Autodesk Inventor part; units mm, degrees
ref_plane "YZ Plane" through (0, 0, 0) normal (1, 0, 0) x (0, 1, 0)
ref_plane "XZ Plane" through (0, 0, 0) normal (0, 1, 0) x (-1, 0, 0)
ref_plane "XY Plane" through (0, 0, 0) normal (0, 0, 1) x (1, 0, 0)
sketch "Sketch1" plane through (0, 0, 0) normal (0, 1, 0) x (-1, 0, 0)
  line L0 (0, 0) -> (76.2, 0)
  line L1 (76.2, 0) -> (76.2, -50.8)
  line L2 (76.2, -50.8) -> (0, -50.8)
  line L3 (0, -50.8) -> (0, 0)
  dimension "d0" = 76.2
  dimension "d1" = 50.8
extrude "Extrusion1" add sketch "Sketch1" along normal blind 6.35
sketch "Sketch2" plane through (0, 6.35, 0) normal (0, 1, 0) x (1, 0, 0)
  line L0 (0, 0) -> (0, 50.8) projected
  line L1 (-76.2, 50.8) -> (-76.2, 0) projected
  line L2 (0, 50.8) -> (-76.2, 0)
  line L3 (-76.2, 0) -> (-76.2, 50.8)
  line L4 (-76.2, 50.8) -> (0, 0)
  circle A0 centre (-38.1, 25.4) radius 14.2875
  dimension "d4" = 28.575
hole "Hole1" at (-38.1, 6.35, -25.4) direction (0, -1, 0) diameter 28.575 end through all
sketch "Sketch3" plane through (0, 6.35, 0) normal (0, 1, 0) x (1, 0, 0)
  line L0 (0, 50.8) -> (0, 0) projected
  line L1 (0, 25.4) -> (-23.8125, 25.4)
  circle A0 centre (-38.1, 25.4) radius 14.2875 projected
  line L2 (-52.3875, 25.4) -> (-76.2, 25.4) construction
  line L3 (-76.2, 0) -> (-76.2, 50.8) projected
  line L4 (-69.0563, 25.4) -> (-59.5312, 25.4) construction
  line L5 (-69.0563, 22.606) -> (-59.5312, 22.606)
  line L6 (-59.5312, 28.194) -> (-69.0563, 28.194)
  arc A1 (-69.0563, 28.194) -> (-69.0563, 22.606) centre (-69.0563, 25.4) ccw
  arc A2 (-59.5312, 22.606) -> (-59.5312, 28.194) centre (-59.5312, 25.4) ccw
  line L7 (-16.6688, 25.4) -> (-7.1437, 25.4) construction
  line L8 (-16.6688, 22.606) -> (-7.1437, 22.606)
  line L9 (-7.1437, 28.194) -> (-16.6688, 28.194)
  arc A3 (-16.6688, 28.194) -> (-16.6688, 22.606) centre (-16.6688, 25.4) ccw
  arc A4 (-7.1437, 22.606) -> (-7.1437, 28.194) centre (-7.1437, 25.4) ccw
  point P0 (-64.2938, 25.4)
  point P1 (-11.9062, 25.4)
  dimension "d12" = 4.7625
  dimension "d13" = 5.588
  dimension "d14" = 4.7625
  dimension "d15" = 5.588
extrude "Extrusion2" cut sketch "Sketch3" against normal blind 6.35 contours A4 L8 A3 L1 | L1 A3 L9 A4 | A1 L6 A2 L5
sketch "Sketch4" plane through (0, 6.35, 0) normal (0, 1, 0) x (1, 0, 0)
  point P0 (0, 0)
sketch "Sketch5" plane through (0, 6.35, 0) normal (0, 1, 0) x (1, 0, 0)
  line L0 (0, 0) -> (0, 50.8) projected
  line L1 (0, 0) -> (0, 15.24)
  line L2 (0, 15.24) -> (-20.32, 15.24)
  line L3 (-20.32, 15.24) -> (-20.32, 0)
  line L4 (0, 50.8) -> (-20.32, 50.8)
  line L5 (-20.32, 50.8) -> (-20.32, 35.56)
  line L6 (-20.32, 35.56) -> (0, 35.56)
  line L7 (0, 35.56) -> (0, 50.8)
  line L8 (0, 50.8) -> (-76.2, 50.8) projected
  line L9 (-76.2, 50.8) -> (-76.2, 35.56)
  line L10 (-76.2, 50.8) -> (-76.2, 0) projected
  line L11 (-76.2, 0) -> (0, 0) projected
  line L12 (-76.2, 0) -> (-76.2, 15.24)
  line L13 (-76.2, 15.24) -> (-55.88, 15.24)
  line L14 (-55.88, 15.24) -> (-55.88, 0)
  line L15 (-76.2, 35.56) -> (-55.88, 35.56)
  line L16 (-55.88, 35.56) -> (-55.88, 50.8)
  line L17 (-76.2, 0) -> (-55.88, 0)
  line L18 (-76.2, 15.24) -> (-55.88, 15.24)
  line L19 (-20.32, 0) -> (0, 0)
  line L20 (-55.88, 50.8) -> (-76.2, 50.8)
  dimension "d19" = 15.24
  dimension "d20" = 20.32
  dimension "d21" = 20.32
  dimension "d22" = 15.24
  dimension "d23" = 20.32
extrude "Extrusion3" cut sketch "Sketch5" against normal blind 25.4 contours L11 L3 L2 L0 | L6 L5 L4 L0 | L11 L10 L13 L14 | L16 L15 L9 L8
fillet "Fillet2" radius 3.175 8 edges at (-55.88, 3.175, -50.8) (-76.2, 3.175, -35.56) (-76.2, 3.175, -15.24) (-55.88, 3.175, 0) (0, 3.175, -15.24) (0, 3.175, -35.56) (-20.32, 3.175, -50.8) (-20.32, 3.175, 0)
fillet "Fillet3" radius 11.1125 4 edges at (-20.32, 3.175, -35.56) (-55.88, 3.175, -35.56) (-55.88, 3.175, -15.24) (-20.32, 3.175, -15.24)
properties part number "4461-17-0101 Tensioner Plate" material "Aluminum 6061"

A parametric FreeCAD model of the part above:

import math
import FreeCAD as App
import Part
import Sketcher
Q = App.Units.Quantity


def edges_at(feature, points):
    """Names of the edges that pass closest to the given points."""
    edges = feature.Shape.Edges
    near = lambda p: min(range(len(edges)), key=lambda i: edges[i].distToShape(Part.Vertex(*p))[0])
    return sorted({f"Edge{near(p) + 1}" for p in points})

doc = App.newDocument("Part")
body = doc.addObject("PartDesign::Body", "Body")

# Sketch on XZ plane
sketch1 = body.newObject("Sketcher::SketchObject", "Sketch")
sketch1.AttachmentSupport = (doc.getObject("XZ_Plane"), [""])
sketch1.MapMode = "FlatFace"
sketch1.addGeometry([
    Part.LineSegment(App.Vector(-76.2, 0, 0), App.Vector(0, 0, 0)),
    Part.LineSegment(App.Vector(0, 0, 0), App.Vector(0, -50.8, 0)),
    Part.LineSegment(App.Vector(0, -50.8, 0), App.Vector(-76.2, -50.8, 0)),
    Part.LineSegment(App.Vector(-76.2, -50.8, 0), App.Vector(-76.2, 0, 0)),
], False)
sketch1.addConstraint([
    Sketcher.Constraint("Coincident", 0, 2, 1, 1),
    Sketcher.Constraint("Coincident", 1, 2, 2, 1),
    Sketcher.Constraint("Coincident", 2, 2, 3, 1),
    Sketcher.Constraint("Coincident", 3, 2, 0, 1),
    Sketcher.Constraint("Horizontal", 0),
    Sketcher.Constraint("Vertical", 1),
    Sketcher.Constraint("Horizontal", 2),
    Sketcher.Constraint("Vertical", 3),
    Sketcher.Constraint("Coincident", 0, 2, -1, 1),
    Sketcher.Constraint("DistanceX", 0, 1, 0, 2, Q("3 in")),
    Sketcher.Constraint("DistanceY", 1, 2, 1, 1, Q("2 in")),
])
pad1 = body.newObject("PartDesign::Pad", "Pad")
pad1.Profile = sketch1
pad1.Length = Q("0.25 in")
pad1.Reversed = True

# Sketch on XZ plane
sketch2 = body.newObject("Sketcher::SketchObject", "Sketch001")
sketch2.AttachmentSupport = (doc.getObject("XZ_Plane"), [""])
sketch2.MapMode = "FlatFace"
sketch2.AttachmentOffset = App.Placement(App.Vector(0, 0, -0.25 * 25.4), App.Rotation())
sketch2.addGeometry(Part.Circle(App.Vector(-38.1, -25.4, 0), App.Vector(0, 0, 1), 14.2875), False)
sketch2.addConstraint([
    Sketcher.Constraint("Diameter", 0, Q("1.125 in")),
    Sketcher.Constraint("DistanceY", 0, 3, -1, 1, Q("1 in")),
    Sketcher.Constraint("DistanceX", 0, 3, -1, 1, Q("1.5 in")),
])
doc.recompute()
hole = body.newObject("PartDesign::Hole", "Hole")
hole.Profile = sketch2
hole.ThreadType = "None"
hole.Diameter = Q("1.125 in")
hole.DepthType = "ThroughAll"
hole.Reversed = True

# Sketch on XZ plane
sketch3 = body.newObject("Sketcher::SketchObject", "Sketch002")
sketch3.AttachmentSupport = (doc.getObject("XZ_Plane"), [""])
sketch3.MapMode = "FlatFace"
sketch3.AttachmentOffset = App.Placement(App.Vector(0, 0, -0.25 * 25.4), App.Rotation())
sketch3.addGeometry([
    Part.ArcOfCircle(Part.Circle(App.Vector(-7.1437, -25.4, 0), App.Vector(0, 0, 1), 2.794), math.radians(-90), math.radians(90)),  # 0
    Part.LineSegment(App.Vector(-7.1437, -28.194, 0), App.Vector(-16.6688, -28.194, 0)),  # 1
    Part.ArcOfCircle(Part.Circle(App.Vector(-16.6688, -25.4, 0), App.Vector(0, 0, 1), 2.794), math.radians(90), math.radians(270)),  # 2
    Part.LineSegment(App.Vector(-16.6688, -22.606, 0), App.Vector(-7.1437, -22.606, 0)),  # 3
    Part.ArcOfCircle(Part.Circle(App.Vector(-69.0563, -25.4, 0), App.Vector(0, 0, 1), 2.794), math.radians(90), math.radians(270)),  # 4
    Part.LineSegment(App.Vector(-69.0563, -22.606, 0), App.Vector(-59.5312, -22.606, 0)),  # 5
    Part.ArcOfCircle(Part.Circle(App.Vector(-59.5312, -25.4, 0), App.Vector(0, 0, 1), 2.794), math.radians(-90), math.radians(90)),  # 6
    Part.LineSegment(App.Vector(-59.5312, -28.194, 0), App.Vector(-69.0563, -28.194, 0)),  # 7
], False)
sketch3.addConstraint([
    Sketcher.Constraint("Tangent", 0, 1, 1, 1),
    Sketcher.Constraint("Tangent", 1, 2, 2, 2),
    Sketcher.Constraint("Tangent", 2, 1, 3, 1),
    Sketcher.Constraint("Tangent", 3, 2, 0, 2),
    Sketcher.Constraint("Tangent", 4, 1, 5, 1),
    Sketcher.Constraint("Tangent", 5, 2, 6, 2),
    Sketcher.Constraint("Tangent", 6, 1, 7, 1),
    Sketcher.Constraint("Tangent", 7, 2, 4, 2),
    Sketcher.Constraint("Horizontal", 1),
    Sketcher.Constraint("Horizontal", 3),
    Sketcher.Constraint("Horizontal", 5),
    Sketcher.Constraint("Horizontal", 7),
    Sketcher.Constraint("Equal", 2, 4),
    Sketcher.Constraint("Horizontal", 2, 3, 4, 3),
    Sketcher.Constraint("Equal", 3, 5),
    Sketcher.Constraint("Radius", 0, Q("0.11 in")),
    Sketcher.Constraint("DistanceY", 0, 3, -1, 1, Q("1 in")),
    Sketcher.Constraint("DistanceX", 1, 2, 1, 1, Q("0.375 in")),
    Sketcher.Constraint("DistanceX", 0, 3, -1, 1, Q("0.281248 in")),
    Sketcher.Constraint("DistanceX", 4, 3, -1, 1, Q("2.718752 in")),
])
pocket1 = body.newObject("PartDesign::Pocket", "Pocket")
pocket1.Profile = sketch3
pocket1.Length = Q("0.25 in")
pocket1.Reversed = True

# Sketch on XZ plane
sketch4 = body.newObject("Sketcher::SketchObject", "Sketch003")
sketch4.AttachmentSupport = (doc.getObject("XZ_Plane"), [""])
sketch4.MapMode = "FlatFace"
sketch4.AttachmentOffset = App.Placement(App.Vector(0, 0, -0.25 * 25.4), App.Rotation())
sketch4.addGeometry([
    Part.LineSegment(App.Vector(-20.32, 0, 0), App.Vector(0, 0, 0)),  # 0
    Part.LineSegment(App.Vector(0, 0, 0), App.Vector(0, -15.24, 0)),  # 1
    Part.LineSegment(App.Vector(0, -15.24, 0), App.Vector(-20.32, -15.24, 0)),  # 2
    Part.LineSegment(App.Vector(-20.32, -15.24, 0), App.Vector(-20.32, 0, 0)),  # 3
    Part.LineSegment(App.Vector(-20.32, -35.56, 0), App.Vector(0, -35.56, 0)),  # 4
    Part.LineSegment(App.Vector(0, -35.56, 0), App.Vector(0, -50.8, 0)),  # 5
    Part.LineSegment(App.Vector(0, -50.8, 0), App.Vector(-20.32, -50.8, 0)),  # 6
    Part.LineSegment(App.Vector(-20.32, -50.8, 0), App.Vector(-20.32, -35.56, 0)),  # 7
    Part.LineSegment(App.Vector(-76.2, 0, 0), App.Vector(-55.88, 0, 0)),  # 8
    Part.LineSegment(App.Vector(-55.88, 0, 0), App.Vector(-55.88, -15.24, 0)),  # 9
    Part.LineSegment(App.Vector(-55.88, -15.24, 0), App.Vector(-76.2, -15.24, 0)),  # 10
    Part.LineSegment(App.Vector(-76.2, -15.24, 0), App.Vector(-76.2, 0, 0)),  # 11
    Part.LineSegment(App.Vector(-55.88, -35.56, 0), App.Vector(-55.88, -50.8, 0)),  # 12
    Part.LineSegment(App.Vector(-55.88, -50.8, 0), App.Vector(-76.2, -50.8, 0)),  # 13
    Part.LineSegment(App.Vector(-76.2, -50.8, 0), App.Vector(-76.2, -35.56, 0)),  # 14
    Part.LineSegment(App.Vector(-76.2, -35.56, 0), App.Vector(-55.88, -35.56, 0)),  # 15
], False)
sketch4.addConstraint([
    Sketcher.Constraint("Coincident", 0, 2, 1, 1),
    Sketcher.Constraint("Coincident", 1, 2, 2, 1),
    Sketcher.Constraint("Coincident", 2, 2, 3, 1),
    Sketcher.Constraint("Coincident", 3, 2, 0, 1),
    Sketcher.Constraint("Coincident", 4, 2, 5, 1),
    Sketcher.Constraint("Coincident", 5, 2, 6, 1),
    Sketcher.Constraint("Coincident", 6, 2, 7, 1),
    Sketcher.Constraint("Coincident", 7, 2, 4, 1),
    Sketcher.Constraint("Coincident", 8, 2, 9, 1),
    Sketcher.Constraint("Coincident", 9, 2, 10, 1),
    Sketcher.Constraint("Coincident", 10, 2, 11, 1),
    Sketcher.Constraint("Coincident", 11, 2, 8, 1),
    Sketcher.Constraint("Coincident", 12, 2, 13, 1),
    Sketcher.Constraint("Coincident", 13, 2, 14, 1),
    Sketcher.Constraint("Coincident", 14, 2, 15, 1),
    Sketcher.Constraint("Coincident", 15, 2, 12, 1),
    Sketcher.Constraint("Horizontal", 0),
    Sketcher.Constraint("Vertical", 1),
    Sketcher.Constraint("Horizontal", 2),
    Sketcher.Constraint("Vertical", 3),
    Sketcher.Constraint("Horizontal", 4),
    Sketcher.Constraint("Vertical", 5),
    Sketcher.Constraint("Horizontal", 6),
    Sketcher.Constraint("Vertical", 7),
    Sketcher.Constraint("Horizontal", 8),
    Sketcher.Constraint("Vertical", 9),
    Sketcher.Constraint("Horizontal", 10),
    Sketcher.Constraint("Vertical", 11),
    Sketcher.Constraint("Vertical", 12),
    Sketcher.Constraint("Horizontal", 13),
    Sketcher.Constraint("Vertical", 14),
    Sketcher.Constraint("Horizontal", 15),
    Sketcher.Constraint("Coincident", 0, 2, -1, 1),
    Sketcher.Constraint("PointOnObject", 4, 2, -2),
    Sketcher.Constraint("PointOnObject", 8, 2, -1),
    Sketcher.Constraint("Horizontal", 2, 2, 9, 2),
    Sketcher.Constraint("Horizontal", 6, 2, 12, 2),
    Sketcher.Constraint("Horizontal", 7, 2, 14, 2),
    Sketcher.Constraint("Vertical", 3, 2, 6, 2),
    Sketcher.Constraint("Vertical", 9, 2, 12, 2),
    Sketcher.Constraint("Vertical", 11, 2, 13, 2),
    Sketcher.Constraint("Equal", 6, 8),
    Sketcher.Constraint("Equal", 3, 5),
    Sketcher.Constraint("DistanceX", 0, 1, 0, 2, Q("0.8 in")),
    Sketcher.Constraint("DistanceY", 1, 2, 1, 1, Q("0.6 in")),
    Sketcher.Constraint("DistanceY", 4, 2, 1, 2, Q("0.8 in")),
    Sketcher.Constraint("DistanceX", 10, 2, -1, 1, Q("3 in")),
])
pocket2 = body.newObject("PartDesign::Pocket", "Pocket001")
pocket2.Profile = sketch4
pocket2.Length = Q("1 in")
pocket2.Reversed = True
doc.recompute()

fillet = body.newObject("PartDesign::Fillet", "Fillet")
fillet.Base = (pocket2, edges_at(pocket2, [
    (-55.88, 3.175, -50.8),
    (-76.2, 3.175, -35.56),
    (-76.2, 3.175, -15.24),
    (-55.88, 3.175, 0),
    (0, 3.175, -15.24),
    (0, 3.175, -35.56),
    (-20.32, 3.175, -50.8),
    (-20.32, 3.175, 0),
]))
fillet.Radius = Q("0.125 in")
doc.recompute()

fillet2 = body.newObject("PartDesign::Fillet", "Fillet001")
fillet2.Base = (fillet, edges_at(fillet, [
    (-20.32, 3.175, -35.56),
    (-55.88, 3.175, -35.56),
    (-55.88, 3.175, -15.24),
    (-20.32, 3.175, -15.24),
]))
fillet2.Radius = Q("0.4375 in")

doc.recompute()
